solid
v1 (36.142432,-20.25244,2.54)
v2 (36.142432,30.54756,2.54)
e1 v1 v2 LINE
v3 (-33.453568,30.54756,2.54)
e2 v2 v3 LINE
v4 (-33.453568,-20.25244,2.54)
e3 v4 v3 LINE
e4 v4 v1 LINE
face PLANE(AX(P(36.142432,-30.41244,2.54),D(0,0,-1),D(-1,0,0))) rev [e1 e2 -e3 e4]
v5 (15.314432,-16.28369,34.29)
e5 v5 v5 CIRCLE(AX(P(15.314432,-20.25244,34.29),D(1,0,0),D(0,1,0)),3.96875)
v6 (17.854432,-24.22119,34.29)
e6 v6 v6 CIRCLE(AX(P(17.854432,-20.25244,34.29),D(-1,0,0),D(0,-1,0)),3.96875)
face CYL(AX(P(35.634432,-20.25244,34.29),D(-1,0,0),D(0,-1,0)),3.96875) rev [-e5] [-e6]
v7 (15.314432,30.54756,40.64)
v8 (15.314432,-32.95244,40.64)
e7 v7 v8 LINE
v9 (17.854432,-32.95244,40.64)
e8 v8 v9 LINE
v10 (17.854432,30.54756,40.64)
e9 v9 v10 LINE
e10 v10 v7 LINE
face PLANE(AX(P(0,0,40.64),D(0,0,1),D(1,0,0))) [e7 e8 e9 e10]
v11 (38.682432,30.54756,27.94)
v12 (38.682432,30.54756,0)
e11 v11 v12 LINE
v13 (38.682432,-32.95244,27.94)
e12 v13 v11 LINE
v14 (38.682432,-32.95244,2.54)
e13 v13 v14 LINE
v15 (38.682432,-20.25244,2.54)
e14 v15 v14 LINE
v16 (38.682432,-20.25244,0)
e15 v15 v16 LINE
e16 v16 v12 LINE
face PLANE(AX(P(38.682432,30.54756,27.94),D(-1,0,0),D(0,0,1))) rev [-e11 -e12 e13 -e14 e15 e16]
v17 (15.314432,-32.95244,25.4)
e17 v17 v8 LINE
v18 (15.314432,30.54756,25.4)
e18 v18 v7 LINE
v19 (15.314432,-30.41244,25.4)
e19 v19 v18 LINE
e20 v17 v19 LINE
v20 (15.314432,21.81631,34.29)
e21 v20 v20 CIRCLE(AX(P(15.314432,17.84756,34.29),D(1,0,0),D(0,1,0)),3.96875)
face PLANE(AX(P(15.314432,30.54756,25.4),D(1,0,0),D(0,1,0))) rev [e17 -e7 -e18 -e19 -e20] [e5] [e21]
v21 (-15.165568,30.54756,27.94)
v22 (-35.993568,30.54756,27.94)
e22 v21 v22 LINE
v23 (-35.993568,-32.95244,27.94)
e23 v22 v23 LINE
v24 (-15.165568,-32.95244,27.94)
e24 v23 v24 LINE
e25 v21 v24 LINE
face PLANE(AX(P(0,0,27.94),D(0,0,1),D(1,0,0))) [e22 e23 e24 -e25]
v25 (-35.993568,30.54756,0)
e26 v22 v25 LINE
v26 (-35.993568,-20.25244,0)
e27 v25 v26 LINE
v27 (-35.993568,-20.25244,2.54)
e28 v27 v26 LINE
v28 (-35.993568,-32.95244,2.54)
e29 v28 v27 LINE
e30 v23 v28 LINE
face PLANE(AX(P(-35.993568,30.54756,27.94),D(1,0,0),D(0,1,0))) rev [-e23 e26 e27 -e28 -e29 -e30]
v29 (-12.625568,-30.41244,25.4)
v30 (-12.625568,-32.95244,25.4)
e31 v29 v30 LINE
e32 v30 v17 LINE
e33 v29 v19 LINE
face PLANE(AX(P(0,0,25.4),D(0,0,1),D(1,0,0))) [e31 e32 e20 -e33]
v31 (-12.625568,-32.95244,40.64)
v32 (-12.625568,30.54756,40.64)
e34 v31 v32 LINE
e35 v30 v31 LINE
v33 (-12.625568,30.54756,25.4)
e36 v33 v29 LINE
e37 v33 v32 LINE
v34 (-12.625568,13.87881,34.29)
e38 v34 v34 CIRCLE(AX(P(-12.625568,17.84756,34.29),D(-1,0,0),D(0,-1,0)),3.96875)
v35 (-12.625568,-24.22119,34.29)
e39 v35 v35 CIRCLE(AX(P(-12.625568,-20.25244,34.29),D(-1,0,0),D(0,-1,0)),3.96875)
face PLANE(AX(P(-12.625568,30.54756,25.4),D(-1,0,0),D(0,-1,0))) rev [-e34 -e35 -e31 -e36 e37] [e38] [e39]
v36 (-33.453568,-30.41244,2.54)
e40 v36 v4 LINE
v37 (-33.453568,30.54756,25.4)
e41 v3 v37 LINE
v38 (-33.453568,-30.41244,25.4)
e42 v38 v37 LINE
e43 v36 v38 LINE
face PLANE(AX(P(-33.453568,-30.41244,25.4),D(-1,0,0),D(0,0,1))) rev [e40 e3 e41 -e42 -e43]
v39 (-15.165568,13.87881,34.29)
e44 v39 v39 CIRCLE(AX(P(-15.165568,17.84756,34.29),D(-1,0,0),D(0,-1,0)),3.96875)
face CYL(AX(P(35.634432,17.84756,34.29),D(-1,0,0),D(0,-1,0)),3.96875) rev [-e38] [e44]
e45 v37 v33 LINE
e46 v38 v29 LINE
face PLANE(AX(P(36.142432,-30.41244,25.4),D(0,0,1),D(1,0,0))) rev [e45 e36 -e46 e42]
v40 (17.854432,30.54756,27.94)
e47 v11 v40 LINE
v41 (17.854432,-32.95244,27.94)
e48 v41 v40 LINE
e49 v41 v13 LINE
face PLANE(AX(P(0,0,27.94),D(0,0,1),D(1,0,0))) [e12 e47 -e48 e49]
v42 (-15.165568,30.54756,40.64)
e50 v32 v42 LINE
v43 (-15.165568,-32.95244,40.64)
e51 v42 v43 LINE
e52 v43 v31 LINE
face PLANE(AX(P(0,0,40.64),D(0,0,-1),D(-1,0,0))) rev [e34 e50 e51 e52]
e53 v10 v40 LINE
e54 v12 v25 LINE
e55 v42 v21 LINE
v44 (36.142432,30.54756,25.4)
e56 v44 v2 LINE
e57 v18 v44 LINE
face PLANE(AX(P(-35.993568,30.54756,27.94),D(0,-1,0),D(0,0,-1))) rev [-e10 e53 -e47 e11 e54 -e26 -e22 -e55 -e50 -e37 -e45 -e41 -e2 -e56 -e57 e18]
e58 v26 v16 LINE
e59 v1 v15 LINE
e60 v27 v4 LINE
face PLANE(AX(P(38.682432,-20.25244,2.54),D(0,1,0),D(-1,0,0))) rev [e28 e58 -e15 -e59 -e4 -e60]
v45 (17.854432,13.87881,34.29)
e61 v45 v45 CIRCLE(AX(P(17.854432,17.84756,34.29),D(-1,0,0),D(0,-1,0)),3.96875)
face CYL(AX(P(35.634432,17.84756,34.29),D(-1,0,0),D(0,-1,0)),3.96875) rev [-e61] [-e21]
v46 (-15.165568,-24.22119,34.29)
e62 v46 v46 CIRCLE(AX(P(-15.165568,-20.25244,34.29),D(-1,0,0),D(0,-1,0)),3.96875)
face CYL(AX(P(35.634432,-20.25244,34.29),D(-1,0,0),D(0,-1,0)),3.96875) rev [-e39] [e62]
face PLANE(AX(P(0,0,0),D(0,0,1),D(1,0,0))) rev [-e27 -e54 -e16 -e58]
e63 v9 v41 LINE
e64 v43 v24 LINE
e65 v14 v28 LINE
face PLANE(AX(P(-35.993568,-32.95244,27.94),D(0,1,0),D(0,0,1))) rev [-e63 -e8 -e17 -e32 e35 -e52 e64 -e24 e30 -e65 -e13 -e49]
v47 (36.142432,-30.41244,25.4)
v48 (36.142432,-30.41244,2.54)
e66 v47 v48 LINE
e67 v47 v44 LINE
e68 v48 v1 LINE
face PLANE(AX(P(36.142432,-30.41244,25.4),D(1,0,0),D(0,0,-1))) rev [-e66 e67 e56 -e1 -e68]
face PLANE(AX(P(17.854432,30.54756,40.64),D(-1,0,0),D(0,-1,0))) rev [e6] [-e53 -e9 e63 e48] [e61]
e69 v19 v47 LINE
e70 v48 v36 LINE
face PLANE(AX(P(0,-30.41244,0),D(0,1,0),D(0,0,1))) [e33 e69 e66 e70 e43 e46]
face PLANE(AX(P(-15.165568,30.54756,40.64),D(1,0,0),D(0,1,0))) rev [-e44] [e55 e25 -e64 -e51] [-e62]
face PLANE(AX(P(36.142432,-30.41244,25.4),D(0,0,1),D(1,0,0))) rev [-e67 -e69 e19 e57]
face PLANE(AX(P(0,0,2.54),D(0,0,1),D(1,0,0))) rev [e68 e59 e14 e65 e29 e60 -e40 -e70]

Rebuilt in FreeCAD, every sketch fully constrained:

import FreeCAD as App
import Part
import Sketcher
Q = App.Units.Quantity


def add_polygon(sketch, points):
    """Adds a closed chain of lines whose ends are joined by coincident constraints."""
    first, n = sketch.GeometryCount, len(points)
    for a, b in zip(points, points[1:] + points[:1]):
        sketch.addGeometry(Part.LineSegment(App.Vector(*a, 0), App.Vector(*b, 0)), False)
    for i in range(n):
        sketch.addConstraint(Sketcher.Constraint("Coincident", first + i, 2, first + (i + 1) % n, 1))

doc = App.newDocument("Part")
body = doc.addObject("PartDesign::Body", "Body")

# Sketch on XY plane
sketch1 = body.newObject("Sketcher::SketchObject", "Sketch")
sketch1.AttachmentSupport = (doc.getObject("XY_Plane"), [""])
sketch1.MapMode = "FlatFace"
add_polygon(sketch1, [(-36, 31), (-36, -33), (39, -33), (39, 31)])  # lines 0-3
sketch1.addConstraint([
    Sketcher.Constraint("Vertical", 0),
    Sketcher.Constraint("Horizontal", 1),
    Sketcher.Constraint("Vertical", 2),
    Sketcher.Constraint("Horizontal", 3),
    Sketcher.Constraint("DistanceY", 0, 2, 0, 1, Q("2.5 in")),
    Sketcher.Constraint("DistanceX", 1, 1, 1, 2, Q("2.94 in")),
    Sketcher.Constraint("DistanceY", 0, 2, -1, 1, Q("32.95244 mm")),
    Sketcher.Constraint("DistanceX", 0, 2, -1, 1, Q("35.993568 mm")),
])
pad1 = body.newObject("PartDesign::Pad", "Pad")
pad1.Profile = sketch1
pad1.Length = Q("1.1 in")

# Sketch on XZ plane
sketch2 = body.newObject("Sketcher::SketchObject", "Sketch001")
sketch2.AttachmentSupport = (doc.getObject("XZ_Plane"), [""])
sketch2.MapMode = "FlatFace"
sketch2.AttachmentOffset = App.Placement(App.Vector(0, 0, -30.54756), App.Rotation())
add_polygon(sketch2, [(-33, 3), (-33, 25), (36, 25), (36, 3)])  # lines 0-3
sketch2.addConstraint([
    Sketcher.Constraint("Vertical", 0),
    Sketcher.Constraint("Horizontal", 1),
    Sketcher.Constraint("Vertical", 2),
    Sketcher.Constraint("Horizontal", 3),
    Sketcher.Constraint("DistanceY", 0, 1, 0, 2, Q("0.9 in")),
    Sketcher.Constraint("DistanceY", -1, 1, 0, 2, Q("1 in")),
    Sketcher.Constraint("DistanceX", 1, 1, 1, 2, Q("2.74 in")),
    Sketcher.Constraint("DistanceX", 0, 2, -1, 1, Q("33.453568 mm")),
])
pocket1 = body.newObject("PartDesign::Pocket", "Pocket")
pocket1.Profile = sketch2
pocket1.Length = Q("2.4 in")
pocket1.Reversed = True

# Sketch on XY plane
sketch3 = body.newObject("Sketcher::SketchObject", "Sketch002")
sketch3.AttachmentSupport = (doc.getObject("XY_Plane"), [""])
sketch3.MapMode = "FlatFace"
sketch3.AttachmentOffset = App.Placement(App.Vector(0, 0, 1.1 * 25.4), App.Rotation())
add_polygon(sketch3, [(-13, 31), (-13, -33), (15, -33), (15, 31)])  # lines 0-3
sketch3.addConstraint([
    Sketcher.Constraint("Vertical", 0),
    Sketcher.Constraint("Horizontal", 1),
    Sketcher.Constraint("Vertical", 2),
    Sketcher.Constraint("Horizontal", 3),
    Sketcher.Constraint("DistanceX", 1, 1, 1, 2, Q("1.1 in")),
    Sketcher.Constraint("DistanceY", 0, 2, 0, 1, Q("2.5 in")),
    Sketcher.Constraint("DistanceY", 0, 2, -1, 1, Q("32.95244 mm")),
    Sketcher.Constraint("DistanceX", 0, 2, -1, 1, Q("12.625568 mm")),
])
pocket2 = body.newObject("PartDesign::Pocket", "Pocket001")
pocket2.Profile = sketch3
pocket2.Length = Q("0.1 in")

# Sketch on XY plane
sketch4 = body.newObject("Sketcher::SketchObject", "Sketch003")
sketch4.AttachmentSupport = (doc.getObject("XY_Plane"), [""])
sketch4.MapMode = "FlatFace"
add_polygon(sketch4, [(39, -20), (39, -33), (-36, -33), (-36, -20)])  # lines 0-3
sketch4.addConstraint([
    Sketcher.Constraint("Vertical", 0),
    Sketcher.Constraint("Horizontal", 1),
    Sketcher.Constraint("Vertical", 2),
    Sketcher.Constraint("Horizontal", 3),
    Sketcher.Constraint("DistanceY", 0, 2, 0, 1, Q("0.5 in")),
    Sketcher.Constraint("DistanceX", 1, 2, 1, 1, Q("2.94 in")),
    Sketcher.Constraint("DistanceY", 0, 2, -1, 1, Q("32.95244 mm")),
    Sketcher.Constraint("DistanceX", -1, 1, 0, 2, Q("38.682432 mm")),
])
pocket3 = body.newObject("PartDesign::Pocket", "Pocket002")
pocket3.Profile = sketch4
pocket3.Length = Q("0.1 in")
pocket3.Reversed = True

# Sketch on XY plane
sketch5 = body.newObject("Sketcher::SketchObject", "Sketch004")
sketch5.AttachmentSupport = (doc.getObject("XY_Plane"), [""])
sketch5.MapMode = "FlatFace"
sketch5.AttachmentOffset = App.Placement(App.Vector(0, 0, 1.1 * 25.4), App.Rotation())
add_polygon(sketch5, [(-15.2, 30.5), (-15.2, -33), (-12.6, -33), (-12.6, 30.5)])  # lines 0-3
add_polygon(sketch5, [(15.3, 30.5), (15.3, -33), (17.9, -33), (17.9, 30.5)])  # lines 4-7
sketch5.addConstraint([
    Sketcher.Constraint("Vertical", 0),
    Sketcher.Constraint("Horizontal", 1),
    Sketcher.Constraint("Vertical", 2),
    Sketcher.Constraint("Horizontal", 3),
    Sketcher.Constraint("Vertical", 4),
    Sketcher.Constraint("Horizontal", 5),
    Sketcher.Constraint("Vertical", 6),
    Sketcher.Constraint("Horizontal", 7),
    Sketcher.Constraint("Horizontal", 1, 2, 4, 2),
    Sketcher.Constraint("Horizontal", 3, 2, 6, 2),
    Sketcher.Constraint("Equal", 3, 5),
    Sketcher.Constraint("DistanceX", 1, 1, 1, 2, Q("0.1 in")),
    Sketcher.Constraint("DistanceY", 0, 2, 0, 1, Q("2.5 in")),
    Sketcher.Constraint("DistanceX", 1, 2, 4, 2, Q("1.1 in")),
    Sketcher.Constraint("DistanceY", 0, 2, -1, 1, Q("32.95244 mm")),
    Sketcher.Constraint("DistanceX", 0, 2, -1, 1, Q("15.165568 mm")),
])
pad2 = body.newObject("PartDesign::Pad", "Pad001")
pad2.Profile = sketch5
pad2.Length = Q("0.5 in")

# Sketch on YZ plane
sketch6 = body.newObject("Sketcher::SketchObject", "Sketch005")
sketch6.AttachmentSupport = (doc.getObject("YZ_Plane"), [""])
sketch6.MapMode = "FlatFace"
sketch6.AttachmentOffset = App.Placement(App.Vector(0, 0, -15.165568), App.Rotation())
sketch6.addGeometry([
    Part.Circle(App.Vector(17.8, 34.3, 0), App.Vector(0, 0, 1), 4),
    Part.Circle(App.Vector(-20.3, 34.3, 0), App.Vector(0, 0, 1), 4),
], False)
sketch6.addConstraint([
    Sketcher.Constraint("Equal", 0, 1),
    Sketcher.Constraint("Horizontal", 0, 3, 1, 3),
    Sketcher.Constraint("Diameter", 0, Q("0.3125 in")),
    Sketcher.Constraint("DistanceX", 1, 3, 0, 3, Q("1.5 in")),
    Sketcher.Constraint("DistanceY", -1, 1, 0, 3, Q("1.35 in")),
    Sketcher.Constraint("DistanceX", -1, 1, 0, 3, Q("17.84756 mm")),
])
pocket4 = body.newObject("PartDesign::Pocket", "Pocket003")
pocket4.Profile = sketch6
pocket4.Length = Q("2 in")
pocket4.Reversed = True

doc.recompute()
